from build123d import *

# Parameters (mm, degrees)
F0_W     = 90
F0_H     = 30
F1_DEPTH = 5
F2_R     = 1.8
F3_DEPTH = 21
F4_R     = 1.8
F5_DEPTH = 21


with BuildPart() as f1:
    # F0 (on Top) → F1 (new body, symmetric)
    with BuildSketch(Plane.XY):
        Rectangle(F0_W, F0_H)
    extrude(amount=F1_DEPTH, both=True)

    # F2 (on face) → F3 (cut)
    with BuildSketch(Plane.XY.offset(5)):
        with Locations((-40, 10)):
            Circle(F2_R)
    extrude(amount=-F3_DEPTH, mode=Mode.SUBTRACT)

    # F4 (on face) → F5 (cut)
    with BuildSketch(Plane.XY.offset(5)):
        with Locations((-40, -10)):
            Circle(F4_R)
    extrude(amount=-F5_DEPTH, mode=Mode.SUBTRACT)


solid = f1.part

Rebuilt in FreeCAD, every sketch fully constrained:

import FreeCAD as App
import Part
import Sketcher

V = App.Vector
Q = App.Units.Quantity

doc = App.newDocument("Part")
body = doc.addObject("PartDesign::Body", "Body")

sketch1 = body.newObject("Sketcher::SketchObject", "Sketch")
sketch1.AttachmentSupport = (doc.getObject("XY_Plane"), [""])
sketch1.MapMode = "FlatFace"
sketch1.addGeometry(Part.LineSegment(V(-45, 15, 0), V(-45, -15, 0)), False)
sketch1.addGeometry(Part.LineSegment(V(-45, -15, 0), V(45, -15, 0)), False)
sketch1.addGeometry(Part.LineSegment(V(45, -15, 0), V(45, 15, 0)), False)
sketch1.addGeometry(Part.LineSegment(V(45, 15, 0), V(-45, 15, 0)), False)
sketch1.addConstraint(Sketcher.Constraint("Coincident", 0, 2, 1, 1))
sketch1.addConstraint(Sketcher.Constraint("Coincident", 1, 2, 2, 1))
sketch1.addConstraint(Sketcher.Constraint("Coincident", 2, 2, 3, 1))
sketch1.addConstraint(Sketcher.Constraint("Coincident", 3, 2, 0, 1))
sketch1.addConstraint(Sketcher.Constraint("Vertical", 0))
sketch1.addConstraint(Sketcher.Constraint("Horizontal", 1))
sketch1.addConstraint(Sketcher.Constraint("Vertical", 2))
sketch1.addConstraint(Sketcher.Constraint("Horizontal", 3))
sketch1.addConstraint(Sketcher.Constraint("Symmetric", 0, 2, 2, 2, -1, 1))
sketch1.addConstraint(Sketcher.Constraint("DistanceX", 1, 1, 1, 2, Q("90 mm")))
sketch1.addConstraint(Sketcher.Constraint("DistanceY", 0, 2, 0, 1, Q("30 mm")))
pad1 = body.newObject("PartDesign::Pad", "Pad")
pad1.Profile = sketch1
pad1.Length = 10
pad1.Midplane = True

sketch2 = body.newObject("Sketcher::SketchObject", "Sketch001")
sketch2.AttachmentSupport = (doc.getObject("XY_Plane"), [""])
sketch2.MapMode = "FlatFace"
sketch2.AttachmentOffset = App.Placement(V(0, 0, 5), App.Rotation())
sketch2.addGeometry(Part.Circle(V(-40, 10, 0), V(0, 0, 1), 1.8), False)
sketch2.addConstraint(Sketcher.Constraint("Diameter", 0, Q("3.6 mm")))
sketch2.addConstraint(Sketcher.Constraint("DistanceX", 0, 3, -1, 1, Q("40 mm")))
sketch2.addConstraint(Sketcher.Constraint("DistanceY", -1, 1, 0, 3, Q("10 mm")))
pocket1 = body.newObject("PartDesign::Pocket", "Pocket")
pocket1.Profile = sketch2
pocket1.Length = 21

sketch3 = body.newObject("Sketcher::SketchObject", "Sketch002")
sketch3.AttachmentSupport = (doc.getObject("XY_Plane"), [""])
sketch3.MapMode = "FlatFace"
sketch3.AttachmentOffset = App.Placement(V(0, 0, 5), App.Rotation())
sketch3.addGeometry(Part.Circle(V(-40, -10, 0), V(0, 0, 1), 1.8), False)
sketch3.addConstraint(Sketcher.Constraint("Diameter", 0, Q("3.6 mm")))
sketch3.addConstraint(Sketcher.Constraint("DistanceX", 0, 3, -1, 1, Q("40 mm")))
sketch3.addConstraint(Sketcher.Constraint("DistanceY", 0, 3, -1, 1, Q("10 mm")))
pocket2 = body.newObject("PartDesign::Pocket", "Pocket001")
pocket2.Profile = sketch3
pocket2.Length = 21

doc.recompute()
